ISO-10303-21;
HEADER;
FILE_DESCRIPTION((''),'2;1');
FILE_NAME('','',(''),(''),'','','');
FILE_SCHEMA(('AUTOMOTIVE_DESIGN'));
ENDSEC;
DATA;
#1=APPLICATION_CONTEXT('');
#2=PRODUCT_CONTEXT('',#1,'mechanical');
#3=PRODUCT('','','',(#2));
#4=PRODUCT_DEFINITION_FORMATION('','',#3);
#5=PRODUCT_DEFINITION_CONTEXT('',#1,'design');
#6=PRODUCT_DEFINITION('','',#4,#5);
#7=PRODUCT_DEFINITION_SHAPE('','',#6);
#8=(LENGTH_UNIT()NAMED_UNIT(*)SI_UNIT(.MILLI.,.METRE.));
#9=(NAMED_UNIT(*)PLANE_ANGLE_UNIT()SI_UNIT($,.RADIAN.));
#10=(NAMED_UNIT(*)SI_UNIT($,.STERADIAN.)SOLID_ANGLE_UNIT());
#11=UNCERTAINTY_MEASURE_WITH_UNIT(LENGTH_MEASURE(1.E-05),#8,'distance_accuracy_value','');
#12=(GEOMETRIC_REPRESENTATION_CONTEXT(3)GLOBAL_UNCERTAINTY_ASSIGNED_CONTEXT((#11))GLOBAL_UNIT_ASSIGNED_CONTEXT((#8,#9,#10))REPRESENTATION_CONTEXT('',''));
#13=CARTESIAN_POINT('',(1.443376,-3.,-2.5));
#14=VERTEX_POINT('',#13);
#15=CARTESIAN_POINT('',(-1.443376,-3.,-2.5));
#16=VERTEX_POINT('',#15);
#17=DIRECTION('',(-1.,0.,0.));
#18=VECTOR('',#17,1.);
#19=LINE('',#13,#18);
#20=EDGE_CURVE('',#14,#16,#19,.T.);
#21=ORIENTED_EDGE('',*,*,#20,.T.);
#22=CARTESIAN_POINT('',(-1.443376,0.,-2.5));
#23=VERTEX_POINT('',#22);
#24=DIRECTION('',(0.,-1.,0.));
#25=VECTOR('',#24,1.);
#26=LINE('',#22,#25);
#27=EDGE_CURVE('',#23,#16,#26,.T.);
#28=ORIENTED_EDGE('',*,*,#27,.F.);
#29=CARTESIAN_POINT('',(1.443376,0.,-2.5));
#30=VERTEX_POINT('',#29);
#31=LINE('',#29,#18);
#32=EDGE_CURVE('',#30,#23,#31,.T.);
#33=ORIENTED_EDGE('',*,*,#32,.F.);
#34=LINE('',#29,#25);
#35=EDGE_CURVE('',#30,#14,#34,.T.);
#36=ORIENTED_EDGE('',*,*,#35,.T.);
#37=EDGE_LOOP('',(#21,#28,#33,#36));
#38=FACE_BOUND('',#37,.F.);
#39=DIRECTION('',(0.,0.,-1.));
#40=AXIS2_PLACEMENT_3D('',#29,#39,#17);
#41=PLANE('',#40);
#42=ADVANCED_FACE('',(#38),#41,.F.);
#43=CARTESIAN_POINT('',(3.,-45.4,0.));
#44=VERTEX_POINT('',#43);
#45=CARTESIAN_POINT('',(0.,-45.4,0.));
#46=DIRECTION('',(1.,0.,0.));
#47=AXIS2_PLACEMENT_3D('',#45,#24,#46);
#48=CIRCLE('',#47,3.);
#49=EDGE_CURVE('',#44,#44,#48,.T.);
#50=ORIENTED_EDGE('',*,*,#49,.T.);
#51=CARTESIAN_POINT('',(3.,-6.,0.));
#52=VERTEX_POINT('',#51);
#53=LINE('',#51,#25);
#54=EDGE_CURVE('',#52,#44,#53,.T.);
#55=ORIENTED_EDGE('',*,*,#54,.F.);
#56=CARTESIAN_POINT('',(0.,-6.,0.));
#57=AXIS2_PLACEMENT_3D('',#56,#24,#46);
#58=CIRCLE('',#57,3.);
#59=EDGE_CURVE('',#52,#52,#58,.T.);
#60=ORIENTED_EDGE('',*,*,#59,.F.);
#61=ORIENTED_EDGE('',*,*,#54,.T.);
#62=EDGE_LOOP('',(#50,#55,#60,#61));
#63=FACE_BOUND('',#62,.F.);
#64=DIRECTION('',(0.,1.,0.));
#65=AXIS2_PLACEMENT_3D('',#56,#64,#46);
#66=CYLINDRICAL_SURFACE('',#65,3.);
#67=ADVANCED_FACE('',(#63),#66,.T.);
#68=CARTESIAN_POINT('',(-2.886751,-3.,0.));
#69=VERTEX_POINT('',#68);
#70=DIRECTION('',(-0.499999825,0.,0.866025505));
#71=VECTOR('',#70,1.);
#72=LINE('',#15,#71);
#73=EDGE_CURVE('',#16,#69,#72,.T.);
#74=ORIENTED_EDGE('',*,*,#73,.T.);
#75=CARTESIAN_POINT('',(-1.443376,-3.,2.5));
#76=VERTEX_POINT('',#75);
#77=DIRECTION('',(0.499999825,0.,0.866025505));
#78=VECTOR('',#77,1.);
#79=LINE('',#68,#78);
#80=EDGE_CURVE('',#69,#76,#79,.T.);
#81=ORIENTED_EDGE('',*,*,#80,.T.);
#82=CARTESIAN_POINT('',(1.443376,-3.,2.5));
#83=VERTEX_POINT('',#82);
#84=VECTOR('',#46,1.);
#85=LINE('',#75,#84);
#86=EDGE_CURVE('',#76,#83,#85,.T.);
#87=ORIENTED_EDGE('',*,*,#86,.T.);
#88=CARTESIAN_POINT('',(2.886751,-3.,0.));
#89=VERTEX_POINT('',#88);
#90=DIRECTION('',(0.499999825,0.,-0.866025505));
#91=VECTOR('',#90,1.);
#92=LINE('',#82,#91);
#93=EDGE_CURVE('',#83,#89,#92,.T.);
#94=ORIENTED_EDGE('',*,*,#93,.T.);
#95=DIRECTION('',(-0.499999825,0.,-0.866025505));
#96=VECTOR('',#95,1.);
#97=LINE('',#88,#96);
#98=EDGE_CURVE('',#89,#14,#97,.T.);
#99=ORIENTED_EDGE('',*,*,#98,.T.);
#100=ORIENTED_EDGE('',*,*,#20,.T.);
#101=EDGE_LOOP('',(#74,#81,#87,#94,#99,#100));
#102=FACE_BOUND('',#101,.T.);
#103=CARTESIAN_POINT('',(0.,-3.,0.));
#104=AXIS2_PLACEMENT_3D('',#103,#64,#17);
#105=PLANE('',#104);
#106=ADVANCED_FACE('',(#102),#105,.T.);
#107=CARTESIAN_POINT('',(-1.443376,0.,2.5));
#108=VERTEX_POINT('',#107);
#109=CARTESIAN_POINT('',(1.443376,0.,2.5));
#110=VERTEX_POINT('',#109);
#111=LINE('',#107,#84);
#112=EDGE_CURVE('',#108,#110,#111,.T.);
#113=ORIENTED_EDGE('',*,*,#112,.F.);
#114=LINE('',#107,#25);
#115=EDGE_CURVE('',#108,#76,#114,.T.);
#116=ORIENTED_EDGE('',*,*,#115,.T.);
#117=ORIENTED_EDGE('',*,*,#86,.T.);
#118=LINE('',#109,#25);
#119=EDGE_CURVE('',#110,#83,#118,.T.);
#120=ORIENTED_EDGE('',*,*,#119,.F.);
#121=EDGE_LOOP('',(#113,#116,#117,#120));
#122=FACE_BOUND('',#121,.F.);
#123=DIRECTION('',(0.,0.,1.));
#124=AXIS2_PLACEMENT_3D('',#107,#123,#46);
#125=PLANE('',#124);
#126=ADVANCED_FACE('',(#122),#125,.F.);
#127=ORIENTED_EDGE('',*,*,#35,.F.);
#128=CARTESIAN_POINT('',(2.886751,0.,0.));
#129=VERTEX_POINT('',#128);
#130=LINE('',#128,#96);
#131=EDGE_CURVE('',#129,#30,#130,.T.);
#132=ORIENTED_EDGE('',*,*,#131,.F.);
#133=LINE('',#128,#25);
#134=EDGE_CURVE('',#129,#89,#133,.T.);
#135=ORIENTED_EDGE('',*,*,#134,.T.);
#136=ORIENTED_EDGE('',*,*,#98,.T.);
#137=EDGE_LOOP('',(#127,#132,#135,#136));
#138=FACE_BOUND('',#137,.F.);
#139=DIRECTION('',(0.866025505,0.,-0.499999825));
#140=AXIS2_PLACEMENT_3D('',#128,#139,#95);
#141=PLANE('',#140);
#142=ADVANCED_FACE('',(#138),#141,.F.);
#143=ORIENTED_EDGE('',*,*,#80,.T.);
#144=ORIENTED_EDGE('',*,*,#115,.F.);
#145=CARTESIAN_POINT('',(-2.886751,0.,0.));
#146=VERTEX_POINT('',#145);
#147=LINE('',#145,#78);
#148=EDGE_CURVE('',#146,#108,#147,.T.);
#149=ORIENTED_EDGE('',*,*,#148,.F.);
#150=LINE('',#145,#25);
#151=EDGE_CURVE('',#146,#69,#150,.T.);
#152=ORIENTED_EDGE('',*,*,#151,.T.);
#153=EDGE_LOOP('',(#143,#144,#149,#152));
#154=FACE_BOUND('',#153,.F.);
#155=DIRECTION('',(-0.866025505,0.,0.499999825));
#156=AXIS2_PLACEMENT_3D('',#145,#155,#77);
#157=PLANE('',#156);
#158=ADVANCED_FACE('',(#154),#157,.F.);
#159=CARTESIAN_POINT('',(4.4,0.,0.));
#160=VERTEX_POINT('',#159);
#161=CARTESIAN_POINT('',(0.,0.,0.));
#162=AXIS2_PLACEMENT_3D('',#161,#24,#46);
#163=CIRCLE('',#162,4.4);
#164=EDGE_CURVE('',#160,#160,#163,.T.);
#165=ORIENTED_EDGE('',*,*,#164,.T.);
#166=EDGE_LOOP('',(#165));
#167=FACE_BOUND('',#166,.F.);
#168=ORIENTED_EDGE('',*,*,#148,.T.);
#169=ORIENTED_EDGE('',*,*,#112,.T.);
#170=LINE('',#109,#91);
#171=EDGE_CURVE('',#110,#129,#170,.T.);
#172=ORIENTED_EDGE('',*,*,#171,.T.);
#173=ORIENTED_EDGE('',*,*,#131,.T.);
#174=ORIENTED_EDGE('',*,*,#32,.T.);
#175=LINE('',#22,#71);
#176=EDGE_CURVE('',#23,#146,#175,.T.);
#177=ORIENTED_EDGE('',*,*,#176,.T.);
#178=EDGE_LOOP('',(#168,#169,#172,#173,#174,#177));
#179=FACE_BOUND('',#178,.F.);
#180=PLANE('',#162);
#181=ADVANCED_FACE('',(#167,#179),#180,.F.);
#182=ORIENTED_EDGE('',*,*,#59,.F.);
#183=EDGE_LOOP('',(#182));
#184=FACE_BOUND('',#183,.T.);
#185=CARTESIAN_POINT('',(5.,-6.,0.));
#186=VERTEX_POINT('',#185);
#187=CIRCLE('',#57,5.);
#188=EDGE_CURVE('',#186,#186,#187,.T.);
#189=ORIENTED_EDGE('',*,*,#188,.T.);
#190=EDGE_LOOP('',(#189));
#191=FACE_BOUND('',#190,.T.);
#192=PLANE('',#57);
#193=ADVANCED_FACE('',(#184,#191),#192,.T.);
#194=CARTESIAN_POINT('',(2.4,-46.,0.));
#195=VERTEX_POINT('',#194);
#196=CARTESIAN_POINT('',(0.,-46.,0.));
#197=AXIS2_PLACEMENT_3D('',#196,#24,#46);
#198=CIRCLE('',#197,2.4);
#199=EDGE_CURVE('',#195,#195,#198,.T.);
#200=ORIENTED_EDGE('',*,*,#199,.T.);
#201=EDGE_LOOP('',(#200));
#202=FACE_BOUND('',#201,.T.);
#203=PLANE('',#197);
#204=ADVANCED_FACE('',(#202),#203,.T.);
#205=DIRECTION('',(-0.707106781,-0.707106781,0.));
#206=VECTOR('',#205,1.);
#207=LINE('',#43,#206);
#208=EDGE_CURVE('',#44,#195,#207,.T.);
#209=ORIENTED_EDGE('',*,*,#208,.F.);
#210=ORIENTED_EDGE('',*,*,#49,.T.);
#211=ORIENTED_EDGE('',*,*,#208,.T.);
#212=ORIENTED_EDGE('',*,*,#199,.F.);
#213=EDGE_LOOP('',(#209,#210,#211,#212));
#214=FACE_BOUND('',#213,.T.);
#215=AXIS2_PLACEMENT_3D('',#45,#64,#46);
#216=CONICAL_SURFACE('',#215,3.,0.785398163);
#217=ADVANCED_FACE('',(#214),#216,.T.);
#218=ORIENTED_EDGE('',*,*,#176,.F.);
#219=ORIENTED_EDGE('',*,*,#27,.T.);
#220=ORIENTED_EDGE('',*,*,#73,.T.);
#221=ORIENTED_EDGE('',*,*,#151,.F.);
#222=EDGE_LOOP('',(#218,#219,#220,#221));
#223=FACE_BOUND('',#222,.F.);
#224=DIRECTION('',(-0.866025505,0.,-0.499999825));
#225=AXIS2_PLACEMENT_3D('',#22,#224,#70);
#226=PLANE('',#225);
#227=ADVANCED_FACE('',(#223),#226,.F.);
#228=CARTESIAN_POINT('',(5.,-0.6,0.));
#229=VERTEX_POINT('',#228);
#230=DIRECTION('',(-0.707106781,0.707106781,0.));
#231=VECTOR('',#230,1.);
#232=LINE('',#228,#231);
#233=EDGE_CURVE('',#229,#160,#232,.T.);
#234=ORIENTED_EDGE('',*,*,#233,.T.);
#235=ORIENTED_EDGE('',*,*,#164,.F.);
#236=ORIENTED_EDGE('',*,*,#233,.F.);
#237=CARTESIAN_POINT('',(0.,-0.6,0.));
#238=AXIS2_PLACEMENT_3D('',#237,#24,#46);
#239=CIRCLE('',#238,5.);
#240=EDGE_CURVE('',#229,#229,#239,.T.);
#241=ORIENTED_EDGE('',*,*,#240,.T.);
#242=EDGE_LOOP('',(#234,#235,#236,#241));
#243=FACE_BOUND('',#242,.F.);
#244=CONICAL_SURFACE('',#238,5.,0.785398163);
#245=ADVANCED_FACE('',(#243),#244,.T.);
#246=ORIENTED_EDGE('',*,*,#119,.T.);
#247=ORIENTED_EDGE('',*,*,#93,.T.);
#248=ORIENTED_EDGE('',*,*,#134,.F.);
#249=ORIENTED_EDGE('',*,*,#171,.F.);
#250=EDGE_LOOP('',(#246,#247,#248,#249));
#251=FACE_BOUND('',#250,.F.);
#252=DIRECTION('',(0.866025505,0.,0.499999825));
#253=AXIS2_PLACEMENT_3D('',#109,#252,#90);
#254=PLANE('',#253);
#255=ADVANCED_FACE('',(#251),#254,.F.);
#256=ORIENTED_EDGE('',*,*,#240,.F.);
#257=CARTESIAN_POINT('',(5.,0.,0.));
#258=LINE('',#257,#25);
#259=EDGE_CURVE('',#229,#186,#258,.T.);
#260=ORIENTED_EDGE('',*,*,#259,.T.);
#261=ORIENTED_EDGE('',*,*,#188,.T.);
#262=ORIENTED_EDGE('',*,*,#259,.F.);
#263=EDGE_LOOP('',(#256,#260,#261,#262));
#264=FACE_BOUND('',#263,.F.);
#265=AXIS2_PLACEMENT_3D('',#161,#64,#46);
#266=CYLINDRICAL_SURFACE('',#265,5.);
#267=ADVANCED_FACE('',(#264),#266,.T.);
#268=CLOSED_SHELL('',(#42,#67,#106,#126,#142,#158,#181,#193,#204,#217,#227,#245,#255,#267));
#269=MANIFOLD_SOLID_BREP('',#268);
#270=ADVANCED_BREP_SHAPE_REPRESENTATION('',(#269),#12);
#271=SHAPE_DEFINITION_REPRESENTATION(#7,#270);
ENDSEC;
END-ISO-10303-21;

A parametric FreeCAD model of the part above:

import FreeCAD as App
import Part
import Sketcher
Q = App.Units.Quantity


def edges_at(feature, points):
    """Names of the edges that pass closest to the given points."""
    edges = feature.Shape.Edges
    near = lambda p: min(range(len(edges)), key=lambda i: edges[i].distToShape(Part.Vertex(*p))[0])
    return sorted({f"Edge{near(p) + 1}" for p in points})


def add_polygon(sketch, points):
    """Adds a closed chain of lines whose ends are joined by coincident constraints."""
    first, n = sketch.GeometryCount, len(points)
    for a, b in zip(points, points[1:] + points[:1]):
        sketch.addGeometry(Part.LineSegment(App.Vector(*a, 0), App.Vector(*b, 0)), False)
    for i in range(n):
        sketch.addConstraint(Sketcher.Constraint("Coincident", first + i, 2, first + (i + 1) % n, 1))

doc = App.newDocument("Part")
body = doc.addObject("PartDesign::Body", "Body")

# Sketch on XZ plane
sketch1 = body.newObject("Sketcher::SketchObject", "Sketch")
sketch1.AttachmentSupport = (doc.getObject("XZ_Plane"), [""])
sketch1.MapMode = "FlatFace"
sketch1.addGeometry(Part.Circle(App.Vector(0, 0, 0), App.Vector(0, 0, 1), 5), False)
sketch1.addConstraint([
    Sketcher.Constraint("Coincident", 0, 3, -1, 1),
    Sketcher.Constraint("Diameter", 0, 10.0),
])
pad1 = body.newObject("PartDesign::Pad", "Pad")
pad1.Profile = sketch1
pad1.Length = 6

# Sketch on XZ plane
sketch2 = body.newObject("Sketcher::SketchObject", "Sketch001")
sketch2.AttachmentSupport = (doc.getObject("XZ_Plane"), [""])
sketch2.MapMode = "FlatFace"
sketch2.AttachmentOffset = App.Placement(App.Vector(0, 0, 6), App.Rotation())
sketch2.addGeometry(Part.Circle(App.Vector(0, 0, 0), App.Vector(0, 0, 1), 3), False)
sketch2.addConstraint([
    Sketcher.Constraint("Coincident", 0, 3, -1, 1),
    Sketcher.Constraint("Diameter", 0, 6.0),
])
pad2 = body.newObject("PartDesign::Pad", "Pad001")
pad2.Profile = sketch2
pad2.Length = 40

# Sketch on XZ plane
sketch3 = body.newObject("Sketcher::SketchObject", "Sketch002")
sketch3.AttachmentSupport = (doc.getObject("XZ_Plane"), [""])
sketch3.MapMode = "FlatFace"
add_polygon(sketch3, [(-1.4, 2.5), (1.4, 2.5), (2.9, 0), (1.4, -2.5), (-1.4, -2.5), (-2.9, 0)])  # lines 0-5
sketch3.addConstraint([
    Sketcher.Constraint("Horizontal", 0),
    Sketcher.Constraint("Horizontal", 3),
    Sketcher.Constraint("Symmetric", 0, 2, 3, 2, -1, 1),
    Sketcher.Constraint("Symmetric", 1, 2, 4, 2, -1, 1),
    Sketcher.Constraint("PointOnObject", 1, 2, -1),
    Sketcher.Constraint("Parallel", 2, 5),
    Sketcher.Constraint("Vertical", 0, 2, 2, 2),
    Sketcher.Constraint("Angle", 1, Q("-60.000012 deg")),
    Sketcher.Constraint("DistanceY", 2, 2, 0, 2, 5.0),
    Sketcher.Constraint("DistanceX", 0, 1, 0, 2, 2.886752),
])
pocket1 = body.newObject("PartDesign::Pocket", "Pocket")
pocket1.Profile = sketch3
pocket1.Length = 3
pocket1.Reversed = True
doc.recompute()

chamfer = body.newObject("PartDesign::Chamfer", "Chamfer")
chamfer.Base = (pocket1, edges_at(pocket1, [(-5, 0, 0), (-3, -46, 0)]))
chamfer.Size = 0.6

doc.recompute()
